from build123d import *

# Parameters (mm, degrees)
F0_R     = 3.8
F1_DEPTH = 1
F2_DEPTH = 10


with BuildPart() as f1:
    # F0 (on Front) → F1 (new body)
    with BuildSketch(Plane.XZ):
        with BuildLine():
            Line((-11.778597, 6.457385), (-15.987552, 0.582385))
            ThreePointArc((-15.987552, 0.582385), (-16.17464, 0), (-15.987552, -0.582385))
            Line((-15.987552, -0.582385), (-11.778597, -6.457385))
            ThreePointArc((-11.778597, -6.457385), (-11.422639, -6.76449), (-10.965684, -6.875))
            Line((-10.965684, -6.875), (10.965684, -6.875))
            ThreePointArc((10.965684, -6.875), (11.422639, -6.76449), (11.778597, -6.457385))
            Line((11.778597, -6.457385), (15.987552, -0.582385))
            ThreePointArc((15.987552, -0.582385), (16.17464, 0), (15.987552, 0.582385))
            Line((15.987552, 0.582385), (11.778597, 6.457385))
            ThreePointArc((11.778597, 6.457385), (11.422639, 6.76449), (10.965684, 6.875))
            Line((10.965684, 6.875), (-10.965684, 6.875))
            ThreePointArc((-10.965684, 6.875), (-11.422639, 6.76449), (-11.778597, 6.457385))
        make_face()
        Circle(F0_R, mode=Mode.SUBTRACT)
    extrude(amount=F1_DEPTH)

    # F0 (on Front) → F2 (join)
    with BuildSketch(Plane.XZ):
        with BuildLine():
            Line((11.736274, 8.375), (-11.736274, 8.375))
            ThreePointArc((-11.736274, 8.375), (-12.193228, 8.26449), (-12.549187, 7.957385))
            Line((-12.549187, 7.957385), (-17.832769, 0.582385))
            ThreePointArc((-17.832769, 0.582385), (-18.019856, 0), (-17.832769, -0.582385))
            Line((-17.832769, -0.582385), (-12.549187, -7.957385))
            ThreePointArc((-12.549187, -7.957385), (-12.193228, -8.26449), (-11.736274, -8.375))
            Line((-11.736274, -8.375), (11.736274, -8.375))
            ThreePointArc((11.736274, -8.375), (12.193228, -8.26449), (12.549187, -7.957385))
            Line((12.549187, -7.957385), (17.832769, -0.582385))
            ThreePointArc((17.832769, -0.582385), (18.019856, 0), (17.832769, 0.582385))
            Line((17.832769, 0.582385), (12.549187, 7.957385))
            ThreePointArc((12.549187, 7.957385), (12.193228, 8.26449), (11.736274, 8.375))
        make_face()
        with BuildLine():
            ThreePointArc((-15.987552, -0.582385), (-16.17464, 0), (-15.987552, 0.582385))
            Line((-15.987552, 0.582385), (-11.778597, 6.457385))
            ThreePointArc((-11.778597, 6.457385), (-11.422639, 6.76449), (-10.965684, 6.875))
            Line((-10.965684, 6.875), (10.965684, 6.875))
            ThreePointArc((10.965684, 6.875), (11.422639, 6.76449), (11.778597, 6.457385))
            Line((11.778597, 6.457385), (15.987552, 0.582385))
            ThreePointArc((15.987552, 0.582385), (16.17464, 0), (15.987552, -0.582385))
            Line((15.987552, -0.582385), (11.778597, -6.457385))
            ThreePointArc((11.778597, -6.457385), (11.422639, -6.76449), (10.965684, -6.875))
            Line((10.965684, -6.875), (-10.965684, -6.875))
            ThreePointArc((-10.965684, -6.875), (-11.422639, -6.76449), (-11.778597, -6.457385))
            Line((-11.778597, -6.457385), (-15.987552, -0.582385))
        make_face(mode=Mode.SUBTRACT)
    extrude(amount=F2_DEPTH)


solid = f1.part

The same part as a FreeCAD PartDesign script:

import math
import FreeCAD as App
import Part
import Sketcher
from FreeCAD import Vector
Q = App.Units.Quantity

doc = App.newDocument("Part")
body = doc.addObject("PartDesign::Body", "Body")

# Sketch on XZ plane
sketch1 = body.newObject("Sketcher::SketchObject", "Sketch")
sketch1.AttachmentSupport = (doc.getObject("XZ_Plane"), [""])
sketch1.MapMode = "FlatFace"
sketch1.addGeometry(Part.LineSegment(Vector(-11.8, 6.5, 0), Vector(-16, 0.6, 0)), False)
sketch1.addGeometry(Part.ArcOfCircle(Part.Circle(Vector(-15.2, 0, 0), Vector(0, 0, 1), 1), math.radians(144), math.radians(216)), False)
sketch1.addGeometry(Part.LineSegment(Vector(-16, -0.6, 0), Vector(-11.8, -6.5, 0)), False)
sketch1.addGeometry(Part.ArcOfCircle(Part.Circle(Vector(-11, -5.9, 0), Vector(0, 0, 1), 1), math.radians(-144), math.radians(-90)), False)
sketch1.addGeometry(Part.LineSegment(Vector(-11, -6.9, 0), Vector(11, -6.9, 0)), False)
sketch1.addGeometry(Part.ArcOfCircle(Part.Circle(Vector(11, -5.9, 0), Vector(0, 0, 1), 1), math.radians(-90), math.radians(-36)), False)
sketch1.addGeometry(Part.LineSegment(Vector(11.8, -6.5, 0), Vector(16, -0.6, 0)), False)
sketch1.addGeometry(Part.ArcOfCircle(Part.Circle(Vector(15.2, 0, 0), Vector(0, 0, 1), 1), math.radians(-36), math.radians(36)), False)
sketch1.addGeometry(Part.LineSegment(Vector(16, 0.6, 0), Vector(11.8, 6.5, 0)), False)
sketch1.addGeometry(Part.ArcOfCircle(Part.Circle(Vector(11, 5.9, 0), Vector(0, 0, 1), 1), math.radians(36), math.radians(90)), False)
sketch1.addGeometry(Part.LineSegment(Vector(11, 6.9, 0), Vector(-11, 6.9, 0)), False)
sketch1.addGeometry(Part.ArcOfCircle(Part.Circle(Vector(-11, 5.9, 0), Vector(0, 0, 1), 1), math.radians(90), math.radians(144)), False)
sketch1.addGeometry(Part.Circle(Vector(0, 0, 0), Vector(0, 0, 1), 3.8), False)
sketch1.addConstraint(Sketcher.Constraint("Coincident", 0, 2, 1, 1))
sketch1.addConstraint(Sketcher.Constraint("Coincident", 1, 2, 2, 1))
sketch1.addConstraint(Sketcher.Constraint("Tangent", 2, 2, 3, 1))
sketch1.addConstraint(Sketcher.Constraint("Tangent", 3, 2, 4, 1))
sketch1.addConstraint(Sketcher.Constraint("Tangent", 4, 2, 5, 1))
sketch1.addConstraint(Sketcher.Constraint("Tangent", 5, 2, 6, 1))
sketch1.addConstraint(Sketcher.Constraint("Coincident", 6, 2, 7, 1))
sketch1.addConstraint(Sketcher.Constraint("Coincident", 7, 2, 8, 1))
sketch1.addConstraint(Sketcher.Constraint("Tangent", 8, 2, 9, 1))
sketch1.addConstraint(Sketcher.Constraint("Tangent", 9, 2, 10, 1))
sketch1.addConstraint(Sketcher.Constraint("Tangent", 10, 2, 11, 1))
sketch1.addConstraint(Sketcher.Constraint("Tangent", 11, 2, 0, 1))
sketch1.addConstraint(Sketcher.Constraint("Horizontal", 4))
sketch1.addConstraint(Sketcher.Constraint("Horizontal", 10))
sketch1.addConstraint(Sketcher.Constraint("Coincident", 12, 3, -1, 1))
sketch1.addConstraint(Sketcher.Constraint("Equal", 3, 5))
sketch1.addConstraint(Sketcher.Constraint("Equal", 1, 7))
sketch1.addConstraint(Sketcher.Constraint("Equal", 5, 9))
sketch1.addConstraint(Sketcher.Constraint("Equal", 9, 11))
sketch1.addConstraint(Sketcher.Constraint("Symmetric", 1, 3, 7, 3, -1, 1))
sketch1.addConstraint(Sketcher.Constraint("Symmetric", 3, 3, 9, 3, -1, 1))
sketch1.addConstraint(Sketcher.Constraint("Symmetric", 2, 2, 5, 2, -2))
sketch1.addConstraint(Sketcher.Constraint("Parallel", 0, 6))
sketch1.addConstraint(Sketcher.Constraint("Horizontal", 1, 2, 6, 2))
sketch1.addConstraint(Sketcher.Constraint("Horizontal", 0, 2, 7, 2))
sketch1.addConstraint(Sketcher.Constraint("Vertical", 0, 2, 1, 2))
sketch1.addConstraint(Sketcher.Constraint("Radius", 3, Q("0.999998 mm")))
sketch1.addConstraint(Sketcher.Constraint("Diameter", 12, Q("7.6 mm")))
sketch1.addConstraint(Sketcher.Constraint("DistanceY", 4, 2, 9, 3, Q("12.750002 mm")))
sketch1.addConstraint(Sketcher.Constraint("Radius", 1, Q("0.999995 mm")))
sketch1.addConstraint(Sketcher.Constraint("DistanceY", 2, 2, 1, 2, Q("5.875 mm")))
sketch1.addConstraint(Sketcher.Constraint("DistanceX", 4, 1, 4, 2, Q("21.931368 mm")))
sketch1.addConstraint(Sketcher.Constraint("DistanceX", 1, 3, 3, 3, Q("4.20896 mm")))
pad1 = body.newObject("PartDesign::Pad", "Pad")
pad1.Profile = sketch1
pad1.Length = 1

# Sketch on XZ plane
sketch2 = body.newObject("Sketcher::SketchObject", "Sketch001")
sketch2.AttachmentSupport = (doc.getObject("XZ_Plane"), [""])
sketch2.MapMode = "FlatFace"
sketch2.addGeometry(Part.LineSegment(Vector(11.7, 8.4, 0), Vector(-11.7, 8.4, 0)), False)
sketch2.addGeometry(Part.ArcOfCircle(Part.Circle(Vector(-11.7, 7.4, 0), Vector(0, 0, 1), 1), math.radians(90), math.radians(144)), False)
sketch2.addGeometry(Part.LineSegment(Vector(-12.5, 8, 0), Vector(-17.8, 0.6, 0)), False)
sketch2.addGeometry(Part.ArcOfCircle(Part.Circle(Vector(-17, 0, 0), Vector(0, 0, 1), 1), math.radians(144), math.radians(216)), False)
sketch2.addGeometry(Part.LineSegment(Vector(-17.8, -0.6, 0), Vector(-12.5, -8, 0)), False)
sketch2.addGeometry(Part.ArcOfCircle(Part.Circle(Vector(-11.7, -7.4, 0), Vector(0, 0, 1), 1), math.radians(-144), math.radians(-90)), False)
sketch2.addGeometry(Part.LineSegment(Vector(-11.7, -8.4, 0), Vector(11.7, -8.4, 0)), False)
sketch2.addGeometry(Part.ArcOfCircle(Part.Circle(Vector(11.7, -7.4, 0), Vector(0, 0, 1), 1), math.radians(-90), math.radians(-36)), False)
sketch2.addGeometry(Part.LineSegment(Vector(12.5, -8, 0), Vector(17.8, -0.6, 0)), False)
sketch2.addGeometry(Part.ArcOfCircle(Part.Circle(Vector(17, 0, 0), Vector(0, 0, 1), 1), math.radians(-36), math.radians(36)), False)
sketch2.addGeometry(Part.LineSegment(Vector(17.8, 0.6, 0), Vector(12.5, 8, 0)), False)
sketch2.addGeometry(Part.ArcOfCircle(Part.Circle(Vector(11.7, 7.4, 0), Vector(0, 0, 1), 1), math.radians(36), math.radians(90)), False)
sketch2.addGeometry(Part.LineSegment(Vector(-11.8, -6.5, 0), Vector(-16, -0.6, 0)), False)
sketch2.addGeometry(Part.ArcOfCircle(Part.Circle(Vector(-15.2, 0, 0), Vector(0, 0, 1), 1), math.radians(144), math.radians(216)), False)
sketch2.addGeometry(Part.LineSegment(Vector(-16, 0.6, 0), Vector(-11.8, 6.5, 0)), False)
sketch2.addGeometry(Part.ArcOfCircle(Part.Circle(Vector(-11, 5.9, 0), Vector(0, 0, 1), 1), math.radians(90), math.radians(144)), False)
sketch2.addGeometry(Part.LineSegment(Vector(-11, 6.9, 0), Vector(11, 6.9, 0)), False)
sketch2.addGeometry(Part.ArcOfCircle(Part.Circle(Vector(11, 5.9, 0), Vector(0, 0, 1), 1), math.radians(36), math.radians(90)), False)
sketch2.addGeometry(Part.LineSegment(Vector(11.8, 6.5, 0), Vector(16, 0.6, 0)), False)
sketch2.addGeometry(Part.ArcOfCircle(Part.Circle(Vector(15.2, 0, 0), Vector(0, 0, 1), 1), math.radians(-36), math.radians(36)), False)
sketch2.addGeometry(Part.LineSegment(Vector(16, -0.6, 0), Vector(11.8, -6.5, 0)), False)
sketch2.addGeometry(Part.ArcOfCircle(Part.Circle(Vector(11, -5.9, 0), Vector(0, 0, 1), 1), math.radians(-90), math.radians(-36)), False)
sketch2.addGeometry(Part.LineSegment(Vector(11, -6.9, 0), Vector(-11, -6.9, 0)), False)
sketch2.addGeometry(Part.ArcOfCircle(Part.Circle(Vector(-11, -5.9, 0), Vector(0, 0, 1), 1), math.radians(-144), math.radians(-90)), False)
sketch2.addConstraint(Sketcher.Constraint("Tangent", 0, 2, 1, 1))
sketch2.addConstraint(Sketcher.Constraint("Tangent", 1, 2, 2, 1))
sketch2.addConstraint(Sketcher.Constraint("Tangent", 2, 2, 3, 1))
sketch2.addConstraint(Sketcher.Constraint("Tangent", 3, 2, 4, 1))
sketch2.addConstraint(Sketcher.Constraint("Tangent", 4, 2, 5, 1))
sketch2.addConstraint(Sketcher.Constraint("Tangent", 5, 2, 6, 1))
sketch2.addConstraint(Sketcher.Constraint("Tangent", 6, 2, 7, 1))
sketch2.addConstraint(Sketcher.Constraint("Tangent", 7, 2, 8, 1))
sketch2.addConstraint(Sketcher.Constraint("Tangent", 8, 2, 9, 1))
sketch2.addConstraint(Sketcher.Constraint("Tangent", 9, 2, 10, 1))
sketch2.addConstraint(Sketcher.Constraint("Tangent", 10, 2, 11, 1))
sketch2.addConstraint(Sketcher.Constraint("Tangent", 11, 2, 0, 1))
sketch2.addConstraint(Sketcher.Constraint("Coincident", 12, 2, 13, 2))
sketch2.addConstraint(Sketcher.Constraint("Coincident", 13, 1, 14, 1))
sketch2.addConstraint(Sketcher.Constraint("Tangent", 14, 2, 15, 2))
sketch2.addConstraint(Sketcher.Constraint("Tangent", 15, 1, 16, 1))
sketch2.addConstraint(Sketcher.Constraint("Tangent", 16, 2, 17, 2))
sketch2.addConstraint(Sketcher.Constraint("Tangent", 17, 1, 18, 1))
sketch2.addConstraint(Sketcher.Constraint("Coincident", 18, 2, 19, 2))
sketch2.addConstraint(Sketcher.Constraint("Coincident", 19, 1, 20, 1))
sketch2.addConstraint(Sketcher.Constraint("Tangent", 20, 2, 21, 2))
sketch2.addConstraint(Sketcher.Constraint("Tangent", 21, 1, 22, 1))
sketch2.addConstraint(Sketcher.Constraint("Tangent", 22, 2, 23, 2))
sketch2.addConstraint(Sketcher.Constraint("Tangent", 23, 1, 12, 1))
sketch2.addConstraint(Sketcher.Constraint("Horizontal", 0))
sketch2.addConstraint(Sketcher.Constraint("Horizontal", 6))
sketch2.addConstraint(Sketcher.Constraint("Horizontal", 16))
sketch2.addConstraint(Sketcher.Constraint("Horizontal", 22))
sketch2.addConstraint(Sketcher.Constraint("Equal", 1, 5))
sketch2.addConstraint(Sketcher.Constraint("Equal", 5, 7))
sketch2.addConstraint(Sketcher.Constraint("Equal", 3, 9))
sketch2.addConstraint(Sketcher.Constraint("Equal", 7, 11))
sketch2.addConstraint(Sketcher.Constraint("Equal", 9, 15))
sketch2.addConstraint(Sketcher.Constraint("Equal", 15, 17))
sketch2.addConstraint(Sketcher.Constraint("Equal", 13, 19))
sketch2.addConstraint(Sketcher.Constraint("Equal", 17, 21))
sketch2.addConstraint(Sketcher.Constraint("Equal", 21, 23))
sketch2.addConstraint(Sketcher.Constraint("Symmetric", 1, 3, 7, 3, -1, 1))
sketch2.addConstraint(Sketcher.Constraint("Symmetric", 3, 3, 9, 3, -1, 1))
sketch2.addConstraint(Sketcher.Constraint("Symmetric", 13, 3, 19, 3, -1, 1))
sketch2.addConstraint(Sketcher.Constraint("Symmetric", 15, 3, 21, 3, -1, 1))
sketch2.addConstraint(Sketcher.Constraint("Symmetric", 4, 2, 7, 2, -2))
sketch2.addConstraint(Sketcher.Constraint("Symmetric", 14, 2, 17, 1, -2))
sketch2.addConstraint(Sketcher.Constraint("Parallel", 4, 10))
sketch2.addConstraint(Sketcher.Constraint("Parallel", 10, 12))
sketch2.addConstraint(Sketcher.Constraint("Parallel", 8, 14))
sketch2.addConstraint(Sketcher.Constraint("Horizontal", 8, 2, 12, 2))
sketch2.addConstraint(Sketcher.Constraint("Horizontal", 9, 2, 13, 1))
sketch2.addConstraint(Sketcher.Constraint("Horizontal", 13, 1, 18, 2))
sketch2.addConstraint(Sketcher.Constraint("Horizontal", 12, 2, 19, 1))
sketch2.addConstraint(Sketcher.Constraint("Radius", 1, Q("1.000002 mm")))
sketch2.addConstraint(Sketcher.Constraint("Radius", 3, Q("1 mm")))
sketch2.addConstraint(Sketcher.Constraint("DistanceY", 15, 3, 0, 2, Q("2.499998 mm")))
sketch2.addConstraint(Sketcher.Constraint("DistanceY", 5, 3, 15, 3, Q("13.25 mm")))
sketch2.addConstraint(Sketcher.Constraint("Radius", 13, Q("0.999995 mm")))
sketch2.addConstraint(Sketcher.Constraint("DistanceX", 0, 2, 0, 1, Q("23.472548 mm")))
sketch2.addConstraint(Sketcher.Constraint("DistanceX", 16, 1, 16, 2, Q("21.931368 mm")))
sketch2.addConstraint(Sketcher.Constraint("DistanceX", 2, 2, -1, 1, Q("17.832769 mm")))
pad2 = body.newObject("PartDesign::Pad", "Pad001")
pad2.Profile = sketch2
pad2.Length = 10

doc.recompute()
